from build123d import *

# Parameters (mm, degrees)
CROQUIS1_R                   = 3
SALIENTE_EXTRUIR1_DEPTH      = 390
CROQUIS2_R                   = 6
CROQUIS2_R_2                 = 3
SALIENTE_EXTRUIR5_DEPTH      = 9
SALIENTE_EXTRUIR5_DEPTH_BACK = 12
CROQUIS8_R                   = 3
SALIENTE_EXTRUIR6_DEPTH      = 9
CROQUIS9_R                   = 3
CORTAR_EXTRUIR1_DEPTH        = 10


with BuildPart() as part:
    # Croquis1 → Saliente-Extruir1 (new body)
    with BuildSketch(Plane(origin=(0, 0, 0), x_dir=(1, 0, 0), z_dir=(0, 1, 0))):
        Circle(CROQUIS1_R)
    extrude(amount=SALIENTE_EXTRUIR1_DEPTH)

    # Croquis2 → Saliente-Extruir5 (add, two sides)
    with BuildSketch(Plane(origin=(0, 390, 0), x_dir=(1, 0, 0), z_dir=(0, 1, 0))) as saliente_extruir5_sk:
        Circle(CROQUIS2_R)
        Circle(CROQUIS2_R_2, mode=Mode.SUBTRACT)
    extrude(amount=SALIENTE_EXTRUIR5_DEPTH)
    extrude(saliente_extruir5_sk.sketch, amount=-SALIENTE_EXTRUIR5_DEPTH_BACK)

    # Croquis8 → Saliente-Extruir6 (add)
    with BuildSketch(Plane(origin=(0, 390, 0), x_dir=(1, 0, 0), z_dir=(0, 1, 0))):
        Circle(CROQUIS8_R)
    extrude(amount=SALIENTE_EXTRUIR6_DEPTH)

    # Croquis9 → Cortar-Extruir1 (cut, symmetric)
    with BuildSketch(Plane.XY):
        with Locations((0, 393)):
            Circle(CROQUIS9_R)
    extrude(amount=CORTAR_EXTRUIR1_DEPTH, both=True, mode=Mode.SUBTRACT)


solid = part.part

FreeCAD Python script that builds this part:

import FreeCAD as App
import Part
import Sketcher

V = App.Vector
Q = App.Units.Quantity

doc = App.newDocument("Part")
body = doc.addObject("PartDesign::Body", "Body")

sketch1 = body.newObject("Sketcher::SketchObject", "Sketch")
sketch1.AttachmentSupport = (doc.getObject("XZ_Plane"), [""])
sketch1.MapMode = "FlatFace"
sketch1.addGeometry(Part.Circle(V(0, 0, 0), V(0, 0, 1), 3), False)
sketch1.addConstraint([
    Sketcher.Constraint("Coincident", 0, 3, -1, 1),
    Sketcher.Constraint("Diameter", 0, Q("6 mm")),
])
pad1 = body.newObject("PartDesign::Pad", "Pad")
pad1.Profile = sketch1
pad1.Length = 390
pad1.Reversed = True

sketch2 = body.newObject("Sketcher::SketchObject", "Sketch001")
sketch2.AttachmentSupport = (doc.getObject("XZ_Plane"), [""])
sketch2.MapMode = "FlatFace"
sketch2.AttachmentOffset = App.Placement(V(0, 0, -390), App.Rotation())
sketch2.addGeometry([
    Part.Circle(V(0, 0, 0), V(0, 0, 1), 6),
    Part.Circle(V(0, 0, 0), V(0, 0, 1), 3),
], False)
sketch2.addConstraint([
    Sketcher.Constraint("Coincident", 0, 3, -1, 1),
    Sketcher.Constraint("Coincident", 1, 3, -1, 1),
    Sketcher.Constraint("Diameter", 0, Q("12 mm")),
    Sketcher.Constraint("Diameter", 1, Q("6 mm")),
])
pad2 = body.newObject("PartDesign::Pad", "Pad001")
pad2.Profile = sketch2
pad2.Type = "TwoLengths"
pad2.Length = 9
pad2.Length2 = 12
pad2.Reversed = True

sketch3 = body.newObject("Sketcher::SketchObject", "Sketch002")
sketch3.AttachmentSupport = (doc.getObject("XZ_Plane"), [""])
sketch3.MapMode = "FlatFace"
sketch3.AttachmentOffset = App.Placement(V(0, 0, -390), App.Rotation())
sketch3.addGeometry(Part.Circle(V(0, 0, 0), V(0, 0, 1), 3), False)
sketch3.addConstraint([
    Sketcher.Constraint("Coincident", 0, 3, -1, 1),
    Sketcher.Constraint("Diameter", 0, Q("6 mm")),
])
pad3 = body.newObject("PartDesign::Pad", "Pad002")
pad3.Profile = sketch3
pad3.Length = 9
pad3.Reversed = True

sketch4 = body.newObject("Sketcher::SketchObject", "Sketch003")
sketch4.AttachmentSupport = (doc.getObject("XY_Plane"), [""])
sketch4.MapMode = "FlatFace"
sketch4.addGeometry(Part.Circle(V(0, 393, 0), V(0, 0, 1), 3), False)
sketch4.addConstraint([
    Sketcher.Constraint("PointOnObject", 0, 3, -2),
    Sketcher.Constraint("Diameter", 0, Q("6 mm")),
    Sketcher.Constraint("DistanceY", -1, 1, 0, 3, Q("393 mm")),
])
pocket1 = body.newObject("PartDesign::Pocket", "Pocket")
pocket1.Profile = sketch4
pocket1.Length = 20
pocket1.Midplane = True

doc.recompute()
